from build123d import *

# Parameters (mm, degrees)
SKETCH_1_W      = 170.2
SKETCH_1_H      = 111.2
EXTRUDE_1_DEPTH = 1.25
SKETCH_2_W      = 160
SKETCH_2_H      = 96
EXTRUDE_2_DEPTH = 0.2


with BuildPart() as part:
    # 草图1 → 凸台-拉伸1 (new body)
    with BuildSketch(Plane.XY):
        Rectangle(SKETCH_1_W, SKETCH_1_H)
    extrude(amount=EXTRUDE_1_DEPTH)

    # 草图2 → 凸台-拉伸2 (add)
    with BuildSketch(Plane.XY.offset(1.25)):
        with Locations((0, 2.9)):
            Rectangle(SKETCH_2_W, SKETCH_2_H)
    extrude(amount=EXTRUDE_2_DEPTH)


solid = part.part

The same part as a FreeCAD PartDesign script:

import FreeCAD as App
import Part
import Sketcher

doc = App.newDocument("Part")
body = doc.addObject("PartDesign::Body", "Body")

# Sketch on XY plane
sketch1 = doc.addObject("Sketcher::SketchObject", "Sketch")
body.addObject(sketch1)
sketch1.AttachmentSupport = (doc.XY_Plane, [""])
sketch1.MapMode = "FlatFace"
sketch1.addGeometry(Part.LineSegment(App.Vector(-85, 56, 0), App.Vector(-85, -56, 0)), False)
sketch1.addGeometry(Part.LineSegment(App.Vector(-85, -56, 0), App.Vector(85, -56, 0)), False)
sketch1.addGeometry(Part.LineSegment(App.Vector(85, -56, 0), App.Vector(85, 56, 0)), False)
sketch1.addGeometry(Part.LineSegment(App.Vector(85, 56, 0), App.Vector(-85, 56, 0)), False)
sketch1.addConstraint(Sketcher.Constraint("Coincident", 0, 2, 1, 1))
sketch1.addConstraint(Sketcher.Constraint("Coincident", 1, 2, 2, 1))
sketch1.addConstraint(Sketcher.Constraint("Coincident", 2, 2, 3, 1))
sketch1.addConstraint(Sketcher.Constraint("Coincident", 3, 2, 0, 1))
sketch1.addConstraint(Sketcher.Constraint("Vertical", 0))
sketch1.addConstraint(Sketcher.Constraint("Horizontal", 1))
sketch1.addConstraint(Sketcher.Constraint("Vertical", 2))
sketch1.addConstraint(Sketcher.Constraint("Horizontal", 3))
sketch1.addConstraint(Sketcher.Constraint("Symmetric", 0, 2, 2, 2, -1, 1))
sketch1.addConstraint(Sketcher.Constraint("DistanceX", 1, 1, 1, 2, 170.2))
sketch1.addConstraint(Sketcher.Constraint("DistanceY", 0, 2, 0, 1, 111.2))
pad1 = doc.addObject("PartDesign::Pad", "Pad")
body.addObject(pad1)
pad1.Profile = sketch1
pad1.Length = 1.25

# Sketch on XY plane
sketch2 = doc.addObject("Sketcher::SketchObject", "Sketch001")
body.addObject(sketch2)
sketch2.AttachmentSupport = (doc.XY_Plane, [""])
sketch2.MapMode = "FlatFace"
sketch2.AttachmentOffset = App.Placement(App.Vector(0, 0, 1.25), App.Rotation())
sketch2.addGeometry(Part.LineSegment(App.Vector(-80, 51, 0), App.Vector(-80, -45, 0)), False)
sketch2.addGeometry(Part.LineSegment(App.Vector(-80, -45, 0), App.Vector(80, -45, 0)), False)
sketch2.addGeometry(Part.LineSegment(App.Vector(80, -45, 0), App.Vector(80, 51, 0)), False)
sketch2.addGeometry(Part.LineSegment(App.Vector(80, 51, 0), App.Vector(-80, 51, 0)), False)
sketch2.addConstraint(Sketcher.Constraint("Coincident", 0, 2, 1, 1))
sketch2.addConstraint(Sketcher.Constraint("Coincident", 1, 2, 2, 1))
sketch2.addConstraint(Sketcher.Constraint("Coincident", 2, 2, 3, 1))
sketch2.addConstraint(Sketcher.Constraint("Coincident", 3, 2, 0, 1))
sketch2.addConstraint(Sketcher.Constraint("Vertical", 0))
sketch2.addConstraint(Sketcher.Constraint("Horizontal", 1))
sketch2.addConstraint(Sketcher.Constraint("Vertical", 2))
sketch2.addConstraint(Sketcher.Constraint("Horizontal", 3))
sketch2.addConstraint(Sketcher.Constraint("DistanceX", 1, 1, 1, 2, 160.0))
sketch2.addConstraint(Sketcher.Constraint("DistanceY", 0, 2, 0, 1, 96.0))
sketch2.addConstraint(Sketcher.Constraint("DistanceX", 0, 2, -1, 1, 80.0))
sketch2.addConstraint(Sketcher.Constraint("DistanceY", 0, 2, -1, 1, 45.1))
pad2 = doc.addObject("PartDesign::Pad", "Pad001")
body.addObject(pad2)
pad2.Profile = sketch2
pad2.Length = 0.2

doc.recompute()
